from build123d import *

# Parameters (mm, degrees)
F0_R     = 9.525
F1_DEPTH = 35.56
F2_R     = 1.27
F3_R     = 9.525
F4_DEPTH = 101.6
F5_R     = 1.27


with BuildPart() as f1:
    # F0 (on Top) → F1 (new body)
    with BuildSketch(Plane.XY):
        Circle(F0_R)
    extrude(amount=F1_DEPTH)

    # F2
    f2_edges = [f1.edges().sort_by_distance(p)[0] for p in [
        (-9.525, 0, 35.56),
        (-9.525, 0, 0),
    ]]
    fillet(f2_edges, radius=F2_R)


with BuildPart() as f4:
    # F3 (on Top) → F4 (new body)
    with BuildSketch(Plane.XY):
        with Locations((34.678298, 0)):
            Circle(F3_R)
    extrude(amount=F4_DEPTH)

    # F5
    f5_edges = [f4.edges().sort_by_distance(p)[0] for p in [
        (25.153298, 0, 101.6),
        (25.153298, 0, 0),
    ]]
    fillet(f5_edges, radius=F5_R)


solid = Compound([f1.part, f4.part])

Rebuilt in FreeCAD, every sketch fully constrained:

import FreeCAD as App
import Part
import Sketcher
Q = App.Units.Quantity


def edges_at(feature, points):
    """Names of the edges that pass closest to the given points."""
    edges = feature.Shape.Edges
    near = lambda p: min(range(len(edges)), key=lambda i: edges[i].distToShape(Part.Vertex(*p))[0])
    return sorted({f"Edge{near(p) + 1}" for p in points})

doc = App.newDocument("Part")
params = doc.addObject("Spreadsheet::Sheet", "Params")
for row, (alias, value) in enumerate([
    ("sketch1_diameter", "0.75 in"),
    ("pad1_length", "1.4 in"),
    ("fillet_radius", "0.05 in"),
    ("sketch2_diameter", "0.75 in"),
    ("pad2_length", "4 in"),
    ("fillet2_radius", "0.05 in"),
], start=1):
    params.set(f"A{row}", alias)
    params.set(f"B{row}", "=" + value)
    params.setAlias(f"B{row}", alias)

body = doc.addObject("PartDesign::Body", "Body")

# Sketch on XY plane
sketch1 = body.newObject("Sketcher::SketchObject", "Sketch")
sketch1.AttachmentSupport = (doc.getObject("XY_Plane"), [""])
sketch1.MapMode = "FlatFace"
sketch1.addGeometry(Part.Circle(App.Vector(0, 0, 0), App.Vector(0, 0, 1), 9.525), False)
sketch1.addConstraint([
    Sketcher.Constraint("Coincident", 0, 3, -1, 1),
    Sketcher.Constraint("Diameter", 0, Q("0.75 in")),
])
sketch1.setExpression("Constraints[1]", "Params.sketch1_diameter")
pad1 = body.newObject("PartDesign::Pad", "Pad")
pad1.Profile = sketch1
pad1.setExpression("Length", "Params.pad1_length")
doc.recompute()

fillet = body.newObject("PartDesign::Fillet", "Fillet")
fillet.Base = (pad1, edges_at(pad1, [(-9.525, 0, 35.56), (-9.525, 0, 0)]))
fillet.setExpression("Radius", "Params.fillet_radius")
body2 = doc.addObject("PartDesign::Body", "Body001")

# Sketch on XY plane
sketch2 = body2.newObject("Sketcher::SketchObject", "Sketch001")
sketch2.AttachmentSupport = (doc.getObject("XY_Plane001"), [""])
sketch2.MapMode = "FlatFace"
sketch2.addGeometry(Part.Circle(App.Vector(34.678298, 0, 0), App.Vector(0, 0, 1), 9.525), False)
sketch2.addConstraint([
    Sketcher.Constraint("PointOnObject", 0, 3, -1),
    Sketcher.Constraint("Diameter", 0, Q("0.75 in")),
    Sketcher.Constraint("DistanceX", -1, 1, 0, 3, 34.678298),
])
sketch2.setExpression("Constraints[1]", "Params.sketch2_diameter")
pad2 = body2.newObject("PartDesign::Pad", "Pad001")
pad2.Profile = sketch2
pad2.setExpression("Length", "Params.pad2_length")
doc.recompute()

fillet2 = body2.newObject("PartDesign::Fillet", "Fillet001")
fillet2.Base = (pad2, edges_at(pad2, [(25.153, 0, 101.6), (25.153, 0, 0)]))
fillet2.setExpression("Radius", "Params.fillet2_radius")

doc.recompute()
